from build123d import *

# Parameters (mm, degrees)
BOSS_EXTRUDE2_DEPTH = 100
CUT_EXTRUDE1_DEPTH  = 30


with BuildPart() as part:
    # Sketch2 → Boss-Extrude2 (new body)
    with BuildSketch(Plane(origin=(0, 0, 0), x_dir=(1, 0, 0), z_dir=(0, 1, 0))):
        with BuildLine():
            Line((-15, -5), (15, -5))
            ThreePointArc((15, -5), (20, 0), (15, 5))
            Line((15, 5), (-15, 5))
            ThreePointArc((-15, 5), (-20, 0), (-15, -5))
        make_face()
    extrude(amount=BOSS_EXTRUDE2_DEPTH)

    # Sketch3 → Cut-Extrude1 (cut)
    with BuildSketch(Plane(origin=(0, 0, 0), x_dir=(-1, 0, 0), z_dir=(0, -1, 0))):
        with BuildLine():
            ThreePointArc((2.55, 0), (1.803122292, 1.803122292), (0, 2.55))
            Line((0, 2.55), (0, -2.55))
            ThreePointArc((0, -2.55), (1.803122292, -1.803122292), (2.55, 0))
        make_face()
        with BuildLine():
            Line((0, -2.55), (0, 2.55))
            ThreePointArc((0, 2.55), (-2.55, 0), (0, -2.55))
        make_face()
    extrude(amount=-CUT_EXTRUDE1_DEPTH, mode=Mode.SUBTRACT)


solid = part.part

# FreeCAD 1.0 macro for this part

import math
import FreeCAD as App
import Part
import Sketcher

V = App.Vector
Q = App.Units.Quantity

doc = App.newDocument("Part")
body = doc.addObject("PartDesign::Body", "Body")

sketch1 = doc.addObject("Sketcher::SketchObject", "Sketch")
body.addObject(sketch1)
sketch1.AttachmentSupport = (doc.XZ_Plane, [""])
sketch1.MapMode = "FlatFace"
sketch1.addGeometry([
    Part.LineSegment(V(-15, 5, 0), V(15, 5, 0)),
    Part.ArcOfCircle(Part.Circle(V(15, 0, 0), V(0, 0, 1), 5), math.radians(-90), math.radians(90)),
    Part.LineSegment(V(15, -5, 0), V(-15, -5, 0)),
    Part.ArcOfCircle(Part.Circle(V(-15, 0, 0), V(0, 0, 1), 5), math.radians(90), math.radians(270)),
], False)
sketch1.addConstraint([
    Sketcher.Constraint("Tangent", 0, 2, 1, 2),
    Sketcher.Constraint("Tangent", 1, 1, 2, 1),
    Sketcher.Constraint("Tangent", 2, 2, 3, 2),
    Sketcher.Constraint("Tangent", 3, 1, 0, 1),
    Sketcher.Constraint("Horizontal", 0),
    Sketcher.Constraint("Horizontal", 2),
    Sketcher.Constraint("Symmetric", 1, 3, 3, 3, -1, 1),
    Sketcher.Constraint("Radius", 1, Q("5 mm")),
    Sketcher.Constraint("DistanceX", 0, 1, 0, 2, Q("30 mm")),
])
pad1 = doc.addObject("PartDesign::Pad", "Pad")
body.addObject(pad1)
pad1.Profile = sketch1
pad1.Length = 100
pad1.Reversed = True

sketch2 = doc.addObject("Sketcher::SketchObject", "Sketch001")
body.addObject(sketch2)
sketch2.AttachmentSupport = (doc.XZ_Plane, [""])
sketch2.MapMode = "FlatFace"
sketch2.addGeometry([
    Part.ArcOfCircle(Part.Circle(V(0, 0, 0), V(0, 0, 1), 2.5), math.radians(180), math.radians(270)),
    Part.ArcOfCircle(Part.Circle(V(0, 0, 0), V(0, 0, 1), 2.5), math.radians(-90), math.radians(90)),
    Part.ArcOfCircle(Part.Circle(V(0, 0, 0), V(0, 0, 1), 2.5), math.radians(90), math.radians(180)),
], False)
sketch2.addConstraint([
    Sketcher.Constraint("Tangent", 0, 2, 1, 1),
    Sketcher.Constraint("Tangent", 1, 2, 2, 1),
    Sketcher.Constraint("Tangent", 2, 2, 0, 1),
    Sketcher.Constraint("Coincident", 0, 3, -1, 1),
    Sketcher.Constraint("PointOnObject", 0, 2, -2),
    Sketcher.Constraint("PointOnObject", 1, 2, -2),
    Sketcher.Constraint("PointOnObject", 2, 2, -1),
    Sketcher.Constraint("Radius", 0, Q("2.55 mm")),
])
pocket1 = doc.addObject("PartDesign::Pocket", "Pocket")
body.addObject(pocket1)
pocket1.Profile = sketch2
pocket1.Length = 30

doc.recompute()
